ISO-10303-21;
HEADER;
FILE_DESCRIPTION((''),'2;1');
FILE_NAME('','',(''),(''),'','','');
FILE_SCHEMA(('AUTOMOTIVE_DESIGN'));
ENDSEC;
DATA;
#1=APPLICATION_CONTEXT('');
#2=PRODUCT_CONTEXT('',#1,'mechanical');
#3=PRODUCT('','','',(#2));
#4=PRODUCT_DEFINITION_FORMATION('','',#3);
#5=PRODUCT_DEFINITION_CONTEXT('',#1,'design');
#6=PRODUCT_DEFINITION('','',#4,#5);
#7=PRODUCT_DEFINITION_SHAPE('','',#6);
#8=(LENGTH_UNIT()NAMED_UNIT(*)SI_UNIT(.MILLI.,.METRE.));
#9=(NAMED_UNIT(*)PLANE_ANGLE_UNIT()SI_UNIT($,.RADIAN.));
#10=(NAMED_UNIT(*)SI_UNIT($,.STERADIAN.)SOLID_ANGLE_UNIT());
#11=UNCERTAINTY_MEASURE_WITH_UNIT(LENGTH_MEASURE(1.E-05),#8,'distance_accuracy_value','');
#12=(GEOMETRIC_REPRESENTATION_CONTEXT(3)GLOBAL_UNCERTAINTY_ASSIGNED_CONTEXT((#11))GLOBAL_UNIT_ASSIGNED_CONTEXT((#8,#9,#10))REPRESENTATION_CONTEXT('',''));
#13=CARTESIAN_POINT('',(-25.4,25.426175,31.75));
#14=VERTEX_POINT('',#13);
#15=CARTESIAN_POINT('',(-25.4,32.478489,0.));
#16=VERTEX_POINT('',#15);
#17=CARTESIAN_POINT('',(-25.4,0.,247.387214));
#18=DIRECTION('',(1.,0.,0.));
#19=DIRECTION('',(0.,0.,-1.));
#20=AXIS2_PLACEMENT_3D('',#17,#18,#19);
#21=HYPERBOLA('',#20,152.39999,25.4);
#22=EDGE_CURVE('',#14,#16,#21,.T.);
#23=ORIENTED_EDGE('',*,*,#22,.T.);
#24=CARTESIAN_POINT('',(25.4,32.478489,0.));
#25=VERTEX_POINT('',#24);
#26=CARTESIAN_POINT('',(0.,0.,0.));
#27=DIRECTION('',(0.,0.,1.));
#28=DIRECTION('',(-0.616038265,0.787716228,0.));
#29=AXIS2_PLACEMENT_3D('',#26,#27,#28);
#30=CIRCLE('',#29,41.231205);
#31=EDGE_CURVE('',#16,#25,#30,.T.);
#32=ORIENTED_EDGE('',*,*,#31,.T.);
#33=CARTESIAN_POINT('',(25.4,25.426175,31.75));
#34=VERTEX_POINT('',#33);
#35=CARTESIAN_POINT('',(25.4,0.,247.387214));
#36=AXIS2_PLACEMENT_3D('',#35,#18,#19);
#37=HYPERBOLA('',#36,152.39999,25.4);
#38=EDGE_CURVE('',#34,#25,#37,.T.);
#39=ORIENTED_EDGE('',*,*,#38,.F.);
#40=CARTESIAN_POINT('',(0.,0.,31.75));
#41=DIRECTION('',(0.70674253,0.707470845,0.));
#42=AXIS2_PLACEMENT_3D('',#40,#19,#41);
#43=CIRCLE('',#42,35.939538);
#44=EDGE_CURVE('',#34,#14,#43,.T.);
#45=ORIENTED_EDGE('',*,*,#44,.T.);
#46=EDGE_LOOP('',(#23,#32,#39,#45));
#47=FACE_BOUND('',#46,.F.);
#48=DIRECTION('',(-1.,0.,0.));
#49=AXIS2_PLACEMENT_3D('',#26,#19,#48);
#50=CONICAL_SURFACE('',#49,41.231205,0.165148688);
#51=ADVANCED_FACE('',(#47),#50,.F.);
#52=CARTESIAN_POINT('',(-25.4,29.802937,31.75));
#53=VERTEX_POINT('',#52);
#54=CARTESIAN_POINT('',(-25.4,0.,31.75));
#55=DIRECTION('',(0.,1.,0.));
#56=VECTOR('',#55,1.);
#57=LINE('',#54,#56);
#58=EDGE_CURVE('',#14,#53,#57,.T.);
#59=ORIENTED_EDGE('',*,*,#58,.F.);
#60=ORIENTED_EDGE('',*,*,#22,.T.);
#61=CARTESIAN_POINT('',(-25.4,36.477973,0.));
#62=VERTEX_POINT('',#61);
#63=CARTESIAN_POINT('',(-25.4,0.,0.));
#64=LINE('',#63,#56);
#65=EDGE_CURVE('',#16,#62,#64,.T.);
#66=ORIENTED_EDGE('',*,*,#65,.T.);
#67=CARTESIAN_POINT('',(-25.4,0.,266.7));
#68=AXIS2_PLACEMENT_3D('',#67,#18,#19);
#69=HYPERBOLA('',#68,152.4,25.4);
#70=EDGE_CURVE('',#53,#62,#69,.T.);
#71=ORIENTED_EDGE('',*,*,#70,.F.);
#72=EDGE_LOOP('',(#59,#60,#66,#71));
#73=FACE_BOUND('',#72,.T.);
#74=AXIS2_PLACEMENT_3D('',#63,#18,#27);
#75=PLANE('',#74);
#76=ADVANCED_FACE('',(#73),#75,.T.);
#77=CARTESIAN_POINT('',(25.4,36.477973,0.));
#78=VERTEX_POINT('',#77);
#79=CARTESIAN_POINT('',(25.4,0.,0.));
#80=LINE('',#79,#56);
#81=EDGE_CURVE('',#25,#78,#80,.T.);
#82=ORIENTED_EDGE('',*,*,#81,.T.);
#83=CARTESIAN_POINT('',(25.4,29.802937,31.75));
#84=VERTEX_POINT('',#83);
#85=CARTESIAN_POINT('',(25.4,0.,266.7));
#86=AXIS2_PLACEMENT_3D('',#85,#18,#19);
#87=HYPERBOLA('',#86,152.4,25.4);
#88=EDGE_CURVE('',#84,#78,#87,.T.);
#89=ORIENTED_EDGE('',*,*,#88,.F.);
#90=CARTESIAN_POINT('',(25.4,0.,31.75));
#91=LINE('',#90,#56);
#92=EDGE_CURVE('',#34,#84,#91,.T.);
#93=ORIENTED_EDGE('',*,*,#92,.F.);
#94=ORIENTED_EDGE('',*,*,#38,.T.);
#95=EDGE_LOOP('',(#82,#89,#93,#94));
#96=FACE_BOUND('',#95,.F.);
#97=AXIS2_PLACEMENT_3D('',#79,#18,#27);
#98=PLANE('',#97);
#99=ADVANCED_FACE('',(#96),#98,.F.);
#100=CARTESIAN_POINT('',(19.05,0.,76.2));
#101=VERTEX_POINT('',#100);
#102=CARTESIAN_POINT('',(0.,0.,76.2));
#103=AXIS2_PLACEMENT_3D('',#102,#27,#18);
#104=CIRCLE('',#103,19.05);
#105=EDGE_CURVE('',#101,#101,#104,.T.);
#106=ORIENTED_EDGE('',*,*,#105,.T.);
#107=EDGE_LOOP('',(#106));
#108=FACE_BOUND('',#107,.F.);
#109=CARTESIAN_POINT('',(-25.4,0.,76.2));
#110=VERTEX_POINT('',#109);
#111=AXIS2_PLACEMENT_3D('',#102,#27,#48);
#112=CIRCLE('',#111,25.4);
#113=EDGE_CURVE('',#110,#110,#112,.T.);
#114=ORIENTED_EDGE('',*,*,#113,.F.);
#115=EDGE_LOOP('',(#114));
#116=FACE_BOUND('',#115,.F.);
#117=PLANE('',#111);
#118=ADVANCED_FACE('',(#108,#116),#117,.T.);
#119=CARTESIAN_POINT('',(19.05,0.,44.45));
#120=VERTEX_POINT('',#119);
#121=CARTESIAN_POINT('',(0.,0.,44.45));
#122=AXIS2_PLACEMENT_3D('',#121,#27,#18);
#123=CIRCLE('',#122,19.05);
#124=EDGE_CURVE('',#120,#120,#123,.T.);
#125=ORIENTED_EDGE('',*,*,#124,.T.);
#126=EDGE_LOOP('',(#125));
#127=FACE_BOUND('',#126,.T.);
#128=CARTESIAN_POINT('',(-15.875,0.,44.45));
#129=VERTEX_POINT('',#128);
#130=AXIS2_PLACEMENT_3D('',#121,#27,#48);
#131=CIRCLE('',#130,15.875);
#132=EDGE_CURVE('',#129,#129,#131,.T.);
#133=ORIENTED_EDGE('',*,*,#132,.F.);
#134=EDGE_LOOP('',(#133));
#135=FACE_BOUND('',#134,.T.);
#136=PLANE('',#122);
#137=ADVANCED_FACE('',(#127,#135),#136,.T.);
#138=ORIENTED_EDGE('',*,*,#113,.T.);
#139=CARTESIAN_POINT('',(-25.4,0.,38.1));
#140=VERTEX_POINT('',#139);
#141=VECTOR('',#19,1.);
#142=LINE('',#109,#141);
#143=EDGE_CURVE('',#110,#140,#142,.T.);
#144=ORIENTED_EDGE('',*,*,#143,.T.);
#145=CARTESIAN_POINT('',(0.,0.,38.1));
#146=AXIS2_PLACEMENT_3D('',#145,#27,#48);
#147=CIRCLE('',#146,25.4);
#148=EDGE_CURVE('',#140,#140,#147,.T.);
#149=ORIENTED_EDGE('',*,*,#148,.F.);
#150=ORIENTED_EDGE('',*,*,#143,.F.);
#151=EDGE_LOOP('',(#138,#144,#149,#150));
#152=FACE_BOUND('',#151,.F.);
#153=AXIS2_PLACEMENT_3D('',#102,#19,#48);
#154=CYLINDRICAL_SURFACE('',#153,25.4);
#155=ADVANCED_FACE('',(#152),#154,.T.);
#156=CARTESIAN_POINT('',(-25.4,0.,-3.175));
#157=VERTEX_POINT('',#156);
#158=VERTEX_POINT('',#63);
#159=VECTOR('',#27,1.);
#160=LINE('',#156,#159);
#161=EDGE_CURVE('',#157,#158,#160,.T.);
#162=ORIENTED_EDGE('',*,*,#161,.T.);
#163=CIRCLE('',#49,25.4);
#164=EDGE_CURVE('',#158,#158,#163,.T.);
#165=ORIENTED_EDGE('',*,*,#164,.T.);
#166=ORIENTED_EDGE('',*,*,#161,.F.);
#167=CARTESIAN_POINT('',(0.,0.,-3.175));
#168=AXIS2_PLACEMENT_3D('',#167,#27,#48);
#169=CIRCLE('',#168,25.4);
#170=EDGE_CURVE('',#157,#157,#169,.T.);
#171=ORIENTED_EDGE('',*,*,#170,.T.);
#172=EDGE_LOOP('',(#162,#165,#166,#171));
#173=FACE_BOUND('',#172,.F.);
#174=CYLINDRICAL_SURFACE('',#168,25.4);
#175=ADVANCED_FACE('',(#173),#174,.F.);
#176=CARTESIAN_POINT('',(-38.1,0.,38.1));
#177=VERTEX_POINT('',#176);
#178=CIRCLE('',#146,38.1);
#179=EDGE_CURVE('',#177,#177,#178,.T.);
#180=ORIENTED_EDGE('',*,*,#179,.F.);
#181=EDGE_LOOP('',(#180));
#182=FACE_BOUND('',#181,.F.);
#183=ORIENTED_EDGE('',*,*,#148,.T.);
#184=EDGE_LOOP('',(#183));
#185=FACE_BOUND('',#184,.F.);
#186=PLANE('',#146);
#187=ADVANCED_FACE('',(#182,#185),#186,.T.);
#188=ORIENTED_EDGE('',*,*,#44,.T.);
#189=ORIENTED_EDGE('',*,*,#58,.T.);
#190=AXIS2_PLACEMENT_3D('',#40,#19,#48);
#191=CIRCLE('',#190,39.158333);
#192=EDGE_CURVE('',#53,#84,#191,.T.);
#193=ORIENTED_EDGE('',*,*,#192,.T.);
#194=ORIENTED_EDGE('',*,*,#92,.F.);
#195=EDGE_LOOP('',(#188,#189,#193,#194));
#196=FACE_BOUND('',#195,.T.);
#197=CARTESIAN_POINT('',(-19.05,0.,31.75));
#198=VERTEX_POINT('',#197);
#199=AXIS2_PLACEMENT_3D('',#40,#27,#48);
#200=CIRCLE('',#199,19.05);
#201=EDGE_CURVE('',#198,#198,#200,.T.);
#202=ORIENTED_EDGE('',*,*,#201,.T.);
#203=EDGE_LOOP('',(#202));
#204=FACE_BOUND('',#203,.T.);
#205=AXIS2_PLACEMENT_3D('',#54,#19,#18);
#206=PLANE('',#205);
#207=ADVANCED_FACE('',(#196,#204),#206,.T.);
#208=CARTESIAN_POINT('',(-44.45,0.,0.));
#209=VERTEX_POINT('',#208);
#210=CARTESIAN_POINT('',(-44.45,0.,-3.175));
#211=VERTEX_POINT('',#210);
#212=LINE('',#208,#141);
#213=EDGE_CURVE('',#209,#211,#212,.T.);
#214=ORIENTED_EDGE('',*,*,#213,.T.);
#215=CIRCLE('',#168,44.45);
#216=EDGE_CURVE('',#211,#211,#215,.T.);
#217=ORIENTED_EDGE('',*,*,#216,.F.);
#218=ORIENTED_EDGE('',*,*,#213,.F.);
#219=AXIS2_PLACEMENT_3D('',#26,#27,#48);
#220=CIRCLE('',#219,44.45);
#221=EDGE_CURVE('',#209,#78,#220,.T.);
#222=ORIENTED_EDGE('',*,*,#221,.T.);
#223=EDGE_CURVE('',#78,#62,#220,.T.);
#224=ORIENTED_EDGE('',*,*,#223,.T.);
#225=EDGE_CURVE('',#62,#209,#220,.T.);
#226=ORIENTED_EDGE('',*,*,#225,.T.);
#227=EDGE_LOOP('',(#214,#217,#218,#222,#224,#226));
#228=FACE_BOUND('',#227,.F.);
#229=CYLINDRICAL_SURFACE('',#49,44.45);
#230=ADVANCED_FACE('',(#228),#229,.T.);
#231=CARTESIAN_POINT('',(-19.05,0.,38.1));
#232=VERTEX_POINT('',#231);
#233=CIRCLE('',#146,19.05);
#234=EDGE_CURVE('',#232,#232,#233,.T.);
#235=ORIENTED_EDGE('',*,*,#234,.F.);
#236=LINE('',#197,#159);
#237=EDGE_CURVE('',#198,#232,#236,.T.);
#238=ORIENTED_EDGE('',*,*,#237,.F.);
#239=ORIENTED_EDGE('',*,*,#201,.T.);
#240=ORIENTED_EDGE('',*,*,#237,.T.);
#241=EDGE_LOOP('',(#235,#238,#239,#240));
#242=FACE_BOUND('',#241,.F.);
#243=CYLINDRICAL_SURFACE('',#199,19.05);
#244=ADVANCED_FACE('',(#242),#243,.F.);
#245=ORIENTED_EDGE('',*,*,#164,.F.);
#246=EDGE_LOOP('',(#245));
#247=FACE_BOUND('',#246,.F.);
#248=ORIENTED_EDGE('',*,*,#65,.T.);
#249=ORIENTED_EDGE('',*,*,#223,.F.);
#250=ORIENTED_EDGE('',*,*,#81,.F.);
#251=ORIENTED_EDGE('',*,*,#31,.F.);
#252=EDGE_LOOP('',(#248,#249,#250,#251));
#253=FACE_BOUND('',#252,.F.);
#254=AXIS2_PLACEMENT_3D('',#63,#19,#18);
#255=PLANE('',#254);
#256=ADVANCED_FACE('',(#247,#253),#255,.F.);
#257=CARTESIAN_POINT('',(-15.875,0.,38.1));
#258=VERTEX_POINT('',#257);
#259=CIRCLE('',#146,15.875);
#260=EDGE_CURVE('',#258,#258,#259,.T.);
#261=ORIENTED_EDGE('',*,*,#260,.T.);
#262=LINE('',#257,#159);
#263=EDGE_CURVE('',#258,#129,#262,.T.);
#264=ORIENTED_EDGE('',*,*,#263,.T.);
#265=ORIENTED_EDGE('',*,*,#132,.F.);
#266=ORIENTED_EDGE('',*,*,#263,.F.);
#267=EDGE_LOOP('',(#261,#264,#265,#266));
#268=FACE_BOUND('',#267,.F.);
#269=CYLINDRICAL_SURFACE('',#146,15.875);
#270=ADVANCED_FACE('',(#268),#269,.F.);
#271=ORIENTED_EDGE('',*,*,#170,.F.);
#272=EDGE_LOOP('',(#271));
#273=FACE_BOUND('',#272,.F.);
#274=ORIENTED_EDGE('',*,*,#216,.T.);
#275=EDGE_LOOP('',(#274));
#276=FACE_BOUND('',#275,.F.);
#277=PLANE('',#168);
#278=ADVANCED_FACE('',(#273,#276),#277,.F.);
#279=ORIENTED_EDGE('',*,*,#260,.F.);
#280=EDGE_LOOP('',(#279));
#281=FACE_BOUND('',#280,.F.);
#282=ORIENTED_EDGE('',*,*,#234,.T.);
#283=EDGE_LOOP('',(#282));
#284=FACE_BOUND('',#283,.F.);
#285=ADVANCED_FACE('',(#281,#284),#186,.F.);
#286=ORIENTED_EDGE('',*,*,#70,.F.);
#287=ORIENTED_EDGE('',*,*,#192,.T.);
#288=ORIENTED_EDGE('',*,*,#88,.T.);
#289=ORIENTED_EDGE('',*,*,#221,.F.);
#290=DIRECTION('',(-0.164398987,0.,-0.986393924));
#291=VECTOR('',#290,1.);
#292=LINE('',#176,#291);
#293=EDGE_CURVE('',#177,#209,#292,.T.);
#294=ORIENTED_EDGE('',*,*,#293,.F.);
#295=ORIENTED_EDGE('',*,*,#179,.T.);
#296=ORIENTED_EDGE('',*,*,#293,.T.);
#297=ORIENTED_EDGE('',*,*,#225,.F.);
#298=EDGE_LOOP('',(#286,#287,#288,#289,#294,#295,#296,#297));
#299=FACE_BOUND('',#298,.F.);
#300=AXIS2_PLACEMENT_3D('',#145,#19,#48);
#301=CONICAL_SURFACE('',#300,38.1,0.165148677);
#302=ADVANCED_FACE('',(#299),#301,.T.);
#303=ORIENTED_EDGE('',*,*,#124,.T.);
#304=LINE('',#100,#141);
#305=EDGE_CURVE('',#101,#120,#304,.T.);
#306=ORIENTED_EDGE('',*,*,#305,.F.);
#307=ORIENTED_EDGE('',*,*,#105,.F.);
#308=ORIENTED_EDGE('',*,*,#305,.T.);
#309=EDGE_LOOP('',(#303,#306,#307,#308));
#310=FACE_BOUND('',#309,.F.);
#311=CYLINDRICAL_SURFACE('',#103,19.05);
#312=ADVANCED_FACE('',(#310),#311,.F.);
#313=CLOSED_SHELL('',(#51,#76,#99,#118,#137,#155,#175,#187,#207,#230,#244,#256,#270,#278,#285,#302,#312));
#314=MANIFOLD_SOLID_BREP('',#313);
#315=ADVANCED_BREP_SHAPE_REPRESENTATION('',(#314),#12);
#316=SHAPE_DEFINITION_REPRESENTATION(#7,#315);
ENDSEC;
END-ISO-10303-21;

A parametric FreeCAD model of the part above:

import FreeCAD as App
import Part
import Sketcher
from FreeCAD import Vector
Q = App.Units.Quantity

doc = App.newDocument("Part")
body = doc.addObject("PartDesign::Body", "Body")

# Sketch on XZ plane
sketch1 = body.newObject("Sketcher::SketchObject", "Sketch")
sketch1.AttachmentSupport = (doc.getObject("XZ_Plane"), [""])
sketch1.MapMode = "FlatFace"
sketch1.addGeometry([
    Part.LineSegment(Vector(-38.1, 38.1, 0), Vector(-44.45, 0, 0)),  # 0
    Part.LineSegment(Vector(-44.45, 0, 0), Vector(-44.45, -3.175, 0)),  # 1
    Part.LineSegment(Vector(-44.45, -3.175, 0), Vector(-25.4, -3.175, 0)),  # 2
    Part.LineSegment(Vector(-25.4, -3.175, 0), Vector(-25.4, 0, 0)),  # 3
    Part.LineSegment(Vector(-25.4, 0, 0), Vector(-41.231205, 0, 0)),  # 4
    Part.LineSegment(Vector(-41.231205, 0, 0), Vector(-35.939538, 31.75, 0)),  # 5
    Part.LineSegment(Vector(-35.939538, 31.75, 0), Vector(-19.05, 31.75, 0)),  # 6
    Part.LineSegment(Vector(-19.05, 31.75, 0), Vector(-19.05, 38.1, 0)),  # 7
    Part.LineSegment(Vector(-19.05, 38.1, 0), Vector(-15.875, 38.1, 0)),  # 8
    Part.LineSegment(Vector(-15.875, 38.1, 0), Vector(-15.875, 76.2, 0)),  # 9
    Part.LineSegment(Vector(-15.875, 76.2, 0), Vector(-25.4, 76.2, 0)),  # 10
    Part.LineSegment(Vector(-25.4, 76.2, 0), Vector(-25.4, 38.1, 0)),  # 11
    Part.LineSegment(Vector(-25.4, 38.1, 0), Vector(-38.1, 38.1, 0)),  # 12
], False)
sketch1.addConstraint([
    Sketcher.Constraint("Coincident", 0, 2, 1, 1),
    Sketcher.Constraint("Coincident", 1, 2, 2, 1),
    Sketcher.Constraint("Coincident", 2, 2, 3, 1),
    Sketcher.Constraint("Coincident", 3, 2, 4, 1),
    Sketcher.Constraint("Coincident", 4, 2, 5, 1),
    Sketcher.Constraint("Coincident", 5, 2, 6, 1),
    Sketcher.Constraint("Coincident", 6, 2, 7, 1),
    Sketcher.Constraint("Coincident", 7, 2, 8, 1),
    Sketcher.Constraint("Coincident", 8, 2, 9, 1),
    Sketcher.Constraint("Coincident", 9, 2, 10, 1),
    Sketcher.Constraint("Coincident", 10, 2, 11, 1),
    Sketcher.Constraint("Coincident", 11, 2, 12, 1),
    Sketcher.Constraint("Coincident", 12, 2, 0, 1),
    Sketcher.Constraint("Vertical", 1),
    Sketcher.Constraint("Horizontal", 2),
    Sketcher.Constraint("Vertical", 3),
    Sketcher.Constraint("Horizontal", 4),
    Sketcher.Constraint("Horizontal", 6),
    Sketcher.Constraint("Vertical", 7),
    Sketcher.Constraint("Horizontal", 8),
    Sketcher.Constraint("Vertical", 9),
    Sketcher.Constraint("Horizontal", 10),
    Sketcher.Constraint("Vertical", 11),
    Sketcher.Constraint("Horizontal", 12),
    Sketcher.Constraint("PointOnObject", 0, 2, -1),
    Sketcher.Constraint("PointOnObject", 3, 2, -1),
    Sketcher.Constraint("Parallel", 0, 5),
    Sketcher.Constraint("Horizontal", 8, 2, 11, 2),
    Sketcher.Constraint("Vertical", 3, 2, 10, 2),
    Sketcher.Constraint("Equal", 8, 1),
    Sketcher.Constraint("DistanceX", 12, 2, 12, 1, Q("0.5 in")),
    Sketcher.Constraint("DistanceY", 9, 1, 9, 2, Q("1.5 in")),
    Sketcher.Constraint("DistanceX", 2, 2, -1, 1, Q("1 in")),
    Sketcher.Constraint("DistanceY", -1, 1, 9, 2, Q("3 in")),
    Sketcher.Constraint("DistanceX", 0, 2, 6, 2, Q("1 in")),
    Sketcher.Constraint("DistanceX", 2, 1, 2, 2, Q("0.75 in")),
    Sketcher.Constraint("DistanceY", 7, 1, 7, 2, Q("0.25 in")),
    Sketcher.Constraint("DistanceX", 8, 1, 8, 2, Q("0.125 in")),
    Sketcher.Constraint("DistanceX", 4, 2, 4, 1, Q("15.831205 mm")),
])
revolution = body.newObject("PartDesign::Revolution", "Revolution")
revolution.Profile = sketch1
revolution.ReferenceAxis = (sketch1, ["V_Axis"])
revolution.Angle = 360

# Sketch on XZ plane
sketch2 = body.newObject("Sketcher::SketchObject", "Sketch001")
sketch2.AttachmentSupport = (doc.getObject("XZ_Plane"), [""])
sketch2.MapMode = "FlatFace"
sketch2.addGeometry([
    Part.LineSegment(Vector(-25.4, 31.75, 0), Vector(-25.4, 0, 0)),
    Part.LineSegment(Vector(-25.4, 0, 0), Vector(25.4, 0, 0)),
    Part.LineSegment(Vector(25.4, 0, 0), Vector(25.4, 31.75, 0)),
    Part.LineSegment(Vector(25.4, 31.75, 0), Vector(-25.4, 31.75, 0)),
], False)
sketch2.addConstraint([
    Sketcher.Constraint("Coincident", 0, 2, 1, 1),
    Sketcher.Constraint("Coincident", 1, 2, 2, 1),
    Sketcher.Constraint("Coincident", 2, 2, 3, 1),
    Sketcher.Constraint("Coincident", 3, 2, 0, 1),
    Sketcher.Constraint("Vertical", 0),
    Sketcher.Constraint("Horizontal", 1),
    Sketcher.Constraint("Vertical", 2),
    Sketcher.Constraint("Horizontal", 3),
    Sketcher.Constraint("Symmetric", 0, 2, 1, 2, -1, 1),
    Sketcher.Constraint("DistanceX", 1, 1, 1, 2, Q("2 in")),
    Sketcher.Constraint("DistanceY", 0, 2, 0, 1, Q("1.25 in")),
])
pocket1 = body.newObject("PartDesign::Pocket", "Pocket")
pocket1.Profile = sketch2
pocket1.Type = "ThroughAll"

# Sketch on XY plane
sketch3 = body.newObject("Sketcher::SketchObject", "Sketch002")
sketch3.AttachmentSupport = (doc.getObject("XY_Plane"), [""])
sketch3.MapMode = "FlatFace"
sketch3.AttachmentOffset = App.Placement(Vector(0, 0, 3 * 25.4), App.Rotation())
sketch3.addGeometry(Part.Circle(Vector(0, 0, 0), Vector(0, 0, 1), 19.05), False)
sketch3.addConstraint([
    Sketcher.Constraint("Coincident", 0, 3, -1, 1),
    Sketcher.Constraint("Diameter", 0, Q("1.5 in")),
])
pocket2 = body.newObject("PartDesign::Pocket", "Pocket001")
pocket2.Profile = sketch3
pocket2.Length = Q("1.25 in")

doc.recompute()
